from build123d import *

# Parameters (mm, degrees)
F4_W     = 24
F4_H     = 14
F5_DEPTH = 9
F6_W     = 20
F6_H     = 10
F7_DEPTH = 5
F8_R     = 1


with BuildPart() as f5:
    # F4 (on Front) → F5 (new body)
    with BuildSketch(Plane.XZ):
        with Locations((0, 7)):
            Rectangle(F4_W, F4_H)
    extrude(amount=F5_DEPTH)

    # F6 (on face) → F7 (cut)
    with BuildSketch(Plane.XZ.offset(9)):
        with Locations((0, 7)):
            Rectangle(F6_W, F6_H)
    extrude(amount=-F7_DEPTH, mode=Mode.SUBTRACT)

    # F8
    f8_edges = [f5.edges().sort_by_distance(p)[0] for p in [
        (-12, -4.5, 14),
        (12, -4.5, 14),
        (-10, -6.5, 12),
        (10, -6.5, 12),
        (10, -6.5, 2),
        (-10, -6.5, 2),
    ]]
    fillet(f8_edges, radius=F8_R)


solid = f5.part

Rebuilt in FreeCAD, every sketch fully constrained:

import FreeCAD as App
import Part
import Sketcher

V = App.Vector


def edges_at(feature, points):
    """Names of the edges that pass closest to the given points."""
    edges = feature.Shape.Edges
    near = lambda p: min(range(len(edges)), key=lambda i: edges[i].distToShape(Part.Vertex(*p))[0])
    return sorted({f"Edge{near(p) + 1}" for p in points})


def add_polygon(sketch, points):
    """Adds a closed chain of lines whose ends are joined by coincident constraints."""
    first, n = sketch.GeometryCount, len(points)
    for a, b in zip(points, points[1:] + points[:1]):
        sketch.addGeometry(Part.LineSegment(App.Vector(*a, 0), App.Vector(*b, 0)), False)
    for i in range(n):
        sketch.addConstraint(Sketcher.Constraint("Coincident", first + i, 2, first + (i + 1) % n, 1))

doc = App.newDocument("Part")
params = doc.addObject("Spreadsheet::Sheet", "Params")
for row, (alias, value) in enumerate([
    ("sketch1_width", "24 mm"),
    ("sketch1_height", "14 mm"),
    ("pad1_length", "9 mm"),
    ("sketch2_width", "20 mm"),
    ("sketch2_height", "10 mm"),
    ("pocket1_length", "5 mm"),
    ("fillet_radius", "1 mm"),
], start=1):
    params.set(f"A{row}", alias)
    params.set(f"B{row}", "=" + value)
    params.setAlias(f"B{row}", alias)

body = doc.addObject("PartDesign::Body", "Body")

# Sketch on XZ plane
sketch1 = doc.addObject("Sketcher::SketchObject", "Sketch")
body.addObject(sketch1)
sketch1.AttachmentSupport = (doc.XZ_Plane, [""])
sketch1.MapMode = "FlatFace"
add_polygon(sketch1, [(-12, 14), (-12, 0), (12, 0), (12, 14)])  # lines 0-3
sketch1.addConstraint([
    Sketcher.Constraint("Vertical", 0),
    Sketcher.Constraint("Horizontal", 1),
    Sketcher.Constraint("Vertical", 2),
    Sketcher.Constraint("Horizontal", 3),
    Sketcher.Constraint("Symmetric", 0, 2, 1, 2, -1, 1),
    Sketcher.Constraint("DistanceX", 1, 1, 1, 2, 24.0),
    Sketcher.Constraint("DistanceY", 0, 2, 0, 1, 14.0),
])
sketch1.setExpression("Constraints[9]", "Params.sketch1_width")
sketch1.setExpression("Constraints[10]", "Params.sketch1_height")
pad1 = doc.addObject("PartDesign::Pad", "Pad")
body.addObject(pad1)
pad1.Profile = sketch1
pad1.setExpression("Length", "Params.pad1_length")

# Sketch on XZ plane
sketch2 = doc.addObject("Sketcher::SketchObject", "Sketch001")
body.addObject(sketch2)
sketch2.AttachmentSupport = (doc.XZ_Plane, [""])
sketch2.MapMode = "FlatFace"
sketch2.AttachmentOffset = App.Placement(V(0, 0, 9), App.Rotation())
add_polygon(sketch2, [(-10, 12), (-10, 2), (10, 2), (10, 12)])  # lines 0-3
sketch2.addConstraint([
    Sketcher.Constraint("Vertical", 0),
    Sketcher.Constraint("Horizontal", 1),
    Sketcher.Constraint("Vertical", 2),
    Sketcher.Constraint("Horizontal", 3),
    Sketcher.Constraint("DistanceX", 1, 1, 1, 2, 20.0),
    Sketcher.Constraint("DistanceY", 0, 2, 0, 1, 10.0),
    Sketcher.Constraint("DistanceX", 0, 2, -1, 1, 10.0),
    Sketcher.Constraint("DistanceY", -1, 1, 0, 2, 2.0),
])
sketch2.setExpression("Constraints[8]", "Params.sketch2_width")
sketch2.setExpression("Constraints[9]", "Params.sketch2_height")
pocket1 = doc.addObject("PartDesign::Pocket", "Pocket")
body.addObject(pocket1)
pocket1.Profile = sketch2
pocket1.setExpression("Length", "Params.pocket1_length")
doc.recompute()

fillet = doc.addObject("PartDesign::Fillet", "Fillet")
body.addObject(fillet)
fillet.Base = (pocket1, edges_at(pocket1, [
    (-12, -4.5, 14),
    (12, -4.5, 14),
    (-10, -6.5, 12),
    (10, -6.5, 12),
    (10, -6.5, 2),
    (-10, -6.5, 2),
]))
fillet.setExpression("Radius", "Params.fillet_radius")

doc.recompute()
